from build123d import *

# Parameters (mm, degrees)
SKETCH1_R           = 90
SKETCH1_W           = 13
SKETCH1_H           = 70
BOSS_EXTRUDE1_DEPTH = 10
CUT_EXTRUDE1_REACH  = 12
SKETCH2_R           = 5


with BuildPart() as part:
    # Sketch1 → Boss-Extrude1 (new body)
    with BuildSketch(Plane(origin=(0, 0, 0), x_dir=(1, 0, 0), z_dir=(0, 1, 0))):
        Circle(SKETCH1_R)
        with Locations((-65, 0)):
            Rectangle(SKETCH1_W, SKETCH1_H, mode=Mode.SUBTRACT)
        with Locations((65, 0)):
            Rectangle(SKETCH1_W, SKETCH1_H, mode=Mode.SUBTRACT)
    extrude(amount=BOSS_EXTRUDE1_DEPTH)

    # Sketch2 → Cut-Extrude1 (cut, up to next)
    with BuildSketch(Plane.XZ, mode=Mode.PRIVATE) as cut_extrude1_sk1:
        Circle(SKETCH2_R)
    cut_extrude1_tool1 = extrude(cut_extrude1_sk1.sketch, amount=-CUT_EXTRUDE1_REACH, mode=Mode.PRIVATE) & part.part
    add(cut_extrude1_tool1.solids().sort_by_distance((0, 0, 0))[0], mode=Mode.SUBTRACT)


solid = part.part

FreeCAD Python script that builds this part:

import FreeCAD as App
import Part
import Sketcher

doc = App.newDocument("Part")
body = doc.addObject("PartDesign::Body", "Body")

# Sketch on XZ plane
sketch1 = body.newObject("Sketcher::SketchObject", "Sketch")
sketch1.AttachmentSupport = (doc.getObject("XZ_Plane"), [""])
sketch1.MapMode = "FlatFace"
sketch1.addGeometry([
    Part.Circle(App.Vector(0, 0, 0), App.Vector(0, 0, 1), 90),  # 0
    Part.LineSegment(App.Vector(-58, 35, 0), App.Vector(-72, 35, 0)),  # 1
    Part.LineSegment(App.Vector(-72, 35, 0), App.Vector(-72, -35, 0)),  # 2
    Part.LineSegment(App.Vector(-72, -35, 0), App.Vector(-58, -35, 0)),  # 3
    Part.LineSegment(App.Vector(-58, -35, 0), App.Vector(-58, 35, 0)),  # 4
    Part.LineSegment(App.Vector(72, 35, 0), App.Vector(58, 35, 0)),  # 5
    Part.LineSegment(App.Vector(58, 35, 0), App.Vector(58, -35, 0)),  # 6
    Part.LineSegment(App.Vector(58, -35, 0), App.Vector(72, -35, 0)),  # 7
    Part.LineSegment(App.Vector(72, -35, 0), App.Vector(72, 35, 0)),  # 8
], False)
sketch1.addConstraint([
    Sketcher.Constraint("Coincident", 1, 2, 2, 1),
    Sketcher.Constraint("Coincident", 2, 2, 3, 1),
    Sketcher.Constraint("Coincident", 3, 2, 4, 1),
    Sketcher.Constraint("Coincident", 4, 2, 1, 1),
    Sketcher.Constraint("Coincident", 5, 2, 6, 1),
    Sketcher.Constraint("Coincident", 6, 2, 7, 1),
    Sketcher.Constraint("Coincident", 7, 2, 8, 1),
    Sketcher.Constraint("Coincident", 8, 2, 5, 1),
    Sketcher.Constraint("Horizontal", 1),
    Sketcher.Constraint("Vertical", 2),
    Sketcher.Constraint("Horizontal", 3),
    Sketcher.Constraint("Vertical", 4),
    Sketcher.Constraint("Horizontal", 5),
    Sketcher.Constraint("Vertical", 6),
    Sketcher.Constraint("Horizontal", 7),
    Sketcher.Constraint("Vertical", 8),
    Sketcher.Constraint("Coincident", 0, 3, -1, 1),
    Sketcher.Constraint("Symmetric", 3, 2, 5, 2, -1, 1),
    Sketcher.Constraint("Symmetric", 1, 2, 7, 2, -1, 1),
    Sketcher.Constraint("Horizontal", 4, 2, 5, 2),
    Sketcher.Constraint("Diameter", 0, 180.0),
    Sketcher.Constraint("DistanceX", 1, 2, 1, 1, 13.0),
    Sketcher.Constraint("DistanceY", 2, 2, 2, 1, 70.0),
    Sketcher.Constraint("DistanceX", 4, 2, 5, 2, 117.0),
])
pad1 = body.newObject("PartDesign::Pad", "Pad")
pad1.Profile = sketch1
pad1.Length = 10
pad1.Reversed = True

# Sketch on XZ plane
sketch2 = body.newObject("Sketcher::SketchObject", "Sketch001")
sketch2.AttachmentSupport = (doc.getObject("XZ_Plane"), [""])
sketch2.MapMode = "FlatFace"
sketch2.addGeometry(Part.Circle(App.Vector(0, 0, 0), App.Vector(0, 0, 1), 5), False)
sketch2.addConstraint([
    Sketcher.Constraint("Coincident", 0, 3, -1, 1),
    Sketcher.Constraint("Diameter", 0, 10.0),
])
pocket1 = body.newObject("PartDesign::Pocket", "Pocket")
pocket1.Profile = sketch2
pocket1.Type = "UpToFirst"

doc.recompute()
